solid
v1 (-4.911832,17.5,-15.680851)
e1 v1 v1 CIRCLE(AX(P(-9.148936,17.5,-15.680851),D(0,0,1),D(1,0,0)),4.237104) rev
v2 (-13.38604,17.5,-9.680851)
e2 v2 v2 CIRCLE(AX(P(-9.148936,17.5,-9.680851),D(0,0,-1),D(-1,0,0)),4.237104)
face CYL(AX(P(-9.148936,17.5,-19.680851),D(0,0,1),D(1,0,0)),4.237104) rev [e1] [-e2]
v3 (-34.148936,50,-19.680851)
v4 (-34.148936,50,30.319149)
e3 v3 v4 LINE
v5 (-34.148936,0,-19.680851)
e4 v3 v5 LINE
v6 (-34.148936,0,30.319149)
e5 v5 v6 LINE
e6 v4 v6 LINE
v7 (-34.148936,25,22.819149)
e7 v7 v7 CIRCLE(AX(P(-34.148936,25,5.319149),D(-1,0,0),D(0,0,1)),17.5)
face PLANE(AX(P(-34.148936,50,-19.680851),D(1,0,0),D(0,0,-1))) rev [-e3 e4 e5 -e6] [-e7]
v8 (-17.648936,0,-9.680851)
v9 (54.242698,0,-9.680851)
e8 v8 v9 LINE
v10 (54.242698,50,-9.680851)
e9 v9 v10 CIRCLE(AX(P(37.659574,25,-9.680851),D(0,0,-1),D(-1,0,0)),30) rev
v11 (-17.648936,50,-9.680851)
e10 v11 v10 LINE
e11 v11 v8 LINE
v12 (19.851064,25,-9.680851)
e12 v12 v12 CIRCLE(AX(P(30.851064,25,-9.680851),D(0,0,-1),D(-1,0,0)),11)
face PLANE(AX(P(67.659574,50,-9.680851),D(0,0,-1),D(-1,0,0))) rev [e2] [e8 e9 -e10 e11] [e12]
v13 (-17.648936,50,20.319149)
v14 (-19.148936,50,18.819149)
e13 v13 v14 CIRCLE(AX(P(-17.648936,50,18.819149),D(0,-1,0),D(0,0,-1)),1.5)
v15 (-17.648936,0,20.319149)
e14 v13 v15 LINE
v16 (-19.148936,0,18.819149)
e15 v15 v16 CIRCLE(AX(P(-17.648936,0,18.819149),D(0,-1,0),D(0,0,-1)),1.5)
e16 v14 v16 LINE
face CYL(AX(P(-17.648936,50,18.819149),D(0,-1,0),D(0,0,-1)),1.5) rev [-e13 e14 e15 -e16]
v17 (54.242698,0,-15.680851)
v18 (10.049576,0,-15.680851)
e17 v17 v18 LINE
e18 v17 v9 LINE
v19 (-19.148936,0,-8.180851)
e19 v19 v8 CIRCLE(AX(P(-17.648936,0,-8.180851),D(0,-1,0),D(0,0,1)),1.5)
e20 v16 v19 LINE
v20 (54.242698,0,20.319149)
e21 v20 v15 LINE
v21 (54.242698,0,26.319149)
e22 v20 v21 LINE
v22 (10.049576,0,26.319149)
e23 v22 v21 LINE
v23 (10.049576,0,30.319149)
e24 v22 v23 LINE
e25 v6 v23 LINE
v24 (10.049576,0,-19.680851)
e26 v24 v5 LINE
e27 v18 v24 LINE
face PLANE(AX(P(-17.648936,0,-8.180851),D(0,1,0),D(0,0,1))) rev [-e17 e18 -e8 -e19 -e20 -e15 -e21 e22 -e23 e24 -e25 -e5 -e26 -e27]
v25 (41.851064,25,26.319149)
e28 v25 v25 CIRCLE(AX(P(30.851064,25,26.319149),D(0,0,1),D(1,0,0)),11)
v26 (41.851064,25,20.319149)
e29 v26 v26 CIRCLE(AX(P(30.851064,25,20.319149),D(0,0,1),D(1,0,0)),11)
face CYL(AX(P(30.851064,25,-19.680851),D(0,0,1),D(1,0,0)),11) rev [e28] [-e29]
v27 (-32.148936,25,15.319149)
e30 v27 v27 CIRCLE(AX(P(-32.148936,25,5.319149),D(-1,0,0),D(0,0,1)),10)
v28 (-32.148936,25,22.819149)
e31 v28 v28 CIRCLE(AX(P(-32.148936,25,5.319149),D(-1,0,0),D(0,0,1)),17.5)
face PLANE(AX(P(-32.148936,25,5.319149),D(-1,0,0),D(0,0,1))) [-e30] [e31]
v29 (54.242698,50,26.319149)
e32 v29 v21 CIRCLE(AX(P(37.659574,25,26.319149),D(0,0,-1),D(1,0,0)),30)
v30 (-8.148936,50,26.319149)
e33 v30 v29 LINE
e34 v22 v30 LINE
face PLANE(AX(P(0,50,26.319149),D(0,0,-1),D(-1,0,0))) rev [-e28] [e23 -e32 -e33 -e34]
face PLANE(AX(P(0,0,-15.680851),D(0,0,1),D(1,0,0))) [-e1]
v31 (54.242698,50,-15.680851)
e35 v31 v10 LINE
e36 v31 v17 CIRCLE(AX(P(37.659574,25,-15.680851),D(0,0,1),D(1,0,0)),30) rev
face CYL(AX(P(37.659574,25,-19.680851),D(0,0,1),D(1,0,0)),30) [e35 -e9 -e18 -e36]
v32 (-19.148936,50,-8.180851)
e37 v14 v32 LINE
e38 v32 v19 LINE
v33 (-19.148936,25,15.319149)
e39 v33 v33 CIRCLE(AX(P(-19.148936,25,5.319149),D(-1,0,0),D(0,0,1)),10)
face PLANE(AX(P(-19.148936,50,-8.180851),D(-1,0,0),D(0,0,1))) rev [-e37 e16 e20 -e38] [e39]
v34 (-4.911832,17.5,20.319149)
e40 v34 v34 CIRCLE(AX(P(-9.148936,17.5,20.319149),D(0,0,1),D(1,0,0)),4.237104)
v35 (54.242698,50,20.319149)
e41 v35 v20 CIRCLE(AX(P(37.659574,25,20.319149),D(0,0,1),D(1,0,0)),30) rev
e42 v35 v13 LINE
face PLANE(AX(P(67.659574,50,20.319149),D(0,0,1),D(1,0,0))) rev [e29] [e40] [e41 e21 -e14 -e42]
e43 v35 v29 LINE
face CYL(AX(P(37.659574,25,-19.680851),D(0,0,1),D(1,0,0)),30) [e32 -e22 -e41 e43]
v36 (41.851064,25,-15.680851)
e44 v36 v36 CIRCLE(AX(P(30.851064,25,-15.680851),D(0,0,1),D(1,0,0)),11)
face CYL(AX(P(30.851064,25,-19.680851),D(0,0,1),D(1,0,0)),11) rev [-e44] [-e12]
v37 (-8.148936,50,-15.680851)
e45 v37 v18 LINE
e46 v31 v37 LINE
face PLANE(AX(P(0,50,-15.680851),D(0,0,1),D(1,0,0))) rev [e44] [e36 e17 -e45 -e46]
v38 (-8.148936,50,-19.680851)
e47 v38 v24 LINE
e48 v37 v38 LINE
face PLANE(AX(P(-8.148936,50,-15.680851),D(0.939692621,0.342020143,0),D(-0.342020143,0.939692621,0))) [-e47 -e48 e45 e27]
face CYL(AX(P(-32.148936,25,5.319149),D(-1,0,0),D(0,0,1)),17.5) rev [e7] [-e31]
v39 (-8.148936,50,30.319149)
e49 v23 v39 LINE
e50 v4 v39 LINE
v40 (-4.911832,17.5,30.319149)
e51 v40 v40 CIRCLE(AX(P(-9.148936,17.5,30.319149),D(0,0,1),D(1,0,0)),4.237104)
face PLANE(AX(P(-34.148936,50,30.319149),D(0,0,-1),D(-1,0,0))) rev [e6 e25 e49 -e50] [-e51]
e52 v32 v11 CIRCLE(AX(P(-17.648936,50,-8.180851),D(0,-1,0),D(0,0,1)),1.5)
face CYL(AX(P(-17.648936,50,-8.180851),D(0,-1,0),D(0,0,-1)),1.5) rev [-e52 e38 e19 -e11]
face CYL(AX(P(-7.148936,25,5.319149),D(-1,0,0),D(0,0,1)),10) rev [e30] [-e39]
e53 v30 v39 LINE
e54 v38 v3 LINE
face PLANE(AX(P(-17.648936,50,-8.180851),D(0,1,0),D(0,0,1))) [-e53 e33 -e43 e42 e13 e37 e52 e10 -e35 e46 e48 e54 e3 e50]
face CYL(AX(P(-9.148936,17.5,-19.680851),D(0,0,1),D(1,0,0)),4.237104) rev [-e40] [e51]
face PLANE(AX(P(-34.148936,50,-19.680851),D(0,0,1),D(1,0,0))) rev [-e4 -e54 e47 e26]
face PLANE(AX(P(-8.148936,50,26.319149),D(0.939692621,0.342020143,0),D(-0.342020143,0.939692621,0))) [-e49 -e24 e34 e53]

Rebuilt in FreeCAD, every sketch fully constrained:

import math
import FreeCAD as App
import Part
import Sketcher

V = App.Vector
Q = App.Units.Quantity

doc = App.newDocument("Part")
body = doc.addObject("PartDesign::Body", "Body")

# Sketch on XZ plane
sketch1 = doc.addObject("Sketcher::SketchObject", "Sketch")
body.addObject(sketch1)
sketch1.AttachmentSupport = (doc.XZ_Plane, [""])
sketch1.MapMode = "FlatFace"
sketch1.addGeometry([
    Part.LineSegment(V(-34.1, -19.7, 0), V(-34.1, 30.3, 0)),  # 0
    Part.LineSegment(V(-34.1, 30.3, 0), V(0, 30.3, 0)),  # 1
    Part.LineSegment(V(0, 30.3, 0), V(0, 26.3, 0)),  # 2
    Part.LineSegment(V(0, 26.3, 0), V(67.7, 26.3, 0)),  # 3
    Part.LineSegment(V(67.7, 26.3, 0), V(67.7, 20.3, 0)),  # 4
    Part.LineSegment(V(67.7, 20.3, 0), V(-17.6, 20.3, 0)),  # 5
    Part.ArcOfCircle(Part.Circle(V(-17.6, 18.8, 0), V(0, 0, 1), 1.5), math.radians(90), math.radians(180)),  # 6
    Part.LineSegment(V(-19.1, 18.8, 0), V(-19.1, -8.2, 0)),  # 7
    Part.ArcOfCircle(Part.Circle(V(-17.6, -8.2, 0), V(0, 0, 1), 1.5), math.radians(180), math.radians(270)),  # 8
    Part.LineSegment(V(-17.6, -9.7, 0), V(67.7, -9.7, 0)),  # 9
    Part.LineSegment(V(67.7, -9.7, 0), V(67.7, -15.7, 0)),  # 10
    Part.LineSegment(V(67.7, -15.7, 0), V(0, -15.7, 0)),  # 11
    Part.LineSegment(V(0, -15.7, 0), V(0, -19.7, 0)),  # 12
    Part.LineSegment(V(0, -19.7, 0), V(-34.1, -19.7, 0)),  # 13
], False)
sketch1.addConstraint([
    Sketcher.Constraint("Coincident", 0, 2, 1, 1),
    Sketcher.Constraint("Coincident", 1, 2, 2, 1),
    Sketcher.Constraint("Coincident", 2, 2, 3, 1),
    Sketcher.Constraint("Coincident", 3, 2, 4, 1),
    Sketcher.Constraint("Coincident", 4, 2, 5, 1),
    Sketcher.Constraint("Tangent", 5, 2, 6, 1),
    Sketcher.Constraint("Tangent", 6, 2, 7, 1),
    Sketcher.Constraint("Tangent", 7, 2, 8, 1),
    Sketcher.Constraint("Tangent", 8, 2, 9, 1),
    Sketcher.Constraint("Coincident", 9, 2, 10, 1),
    Sketcher.Constraint("Coincident", 10, 2, 11, 1),
    Sketcher.Constraint("Coincident", 11, 2, 12, 1),
    Sketcher.Constraint("Coincident", 12, 2, 13, 1),
    Sketcher.Constraint("Coincident", 13, 2, 0, 1),
    Sketcher.Constraint("Vertical", 0),
    Sketcher.Constraint("Horizontal", 1),
    Sketcher.Constraint("Vertical", 2),
    Sketcher.Constraint("Horizontal", 3),
    Sketcher.Constraint("Vertical", 4),
    Sketcher.Constraint("Horizontal", 5),
    Sketcher.Constraint("Vertical", 7),
    Sketcher.Constraint("Horizontal", 9),
    Sketcher.Constraint("Vertical", 10),
    Sketcher.Constraint("Horizontal", 11),
    Sketcher.Constraint("Vertical", 12),
    Sketcher.Constraint("Horizontal", 13),
    Sketcher.Constraint("Equal", 6, 8),
    Sketcher.Constraint("PointOnObject", 1, 2, -2),
    Sketcher.Constraint("PointOnObject", 11, 2, -2),
    Sketcher.Constraint("Vertical", 4, 2, 9, 2),
    Sketcher.Constraint("Equal", 4, 10),
    Sketcher.Constraint("Equal", 2, 12),
    Sketcher.Constraint("Radius", 6, 1.5),
    Sketcher.Constraint("DistanceY", 0, 1, 0, 2, 50.0),
    Sketcher.Constraint("DistanceY", 2, 2, 2, 1, 4.0),
    Sketcher.Constraint("DistanceY", 4, 2, 4, 1, 6.0),
    Sketcher.Constraint("DistanceX", 0, 2, 6, 2, 15.0),
    Sketcher.Constraint("DistanceX", 5, 2, 5, 1, 85.308511),
    Sketcher.Constraint("DistanceX", 1, 1, 1, 2, 34.148936),
    Sketcher.Constraint("DistanceY", -1, 1, 6, 3, 18.819149),
])
pad1 = doc.addObject("PartDesign::Pad", "Pad")
body.addObject(pad1)
pad1.Profile = sketch1
pad1.Length = 50
pad1.Reversed = True

# Sketch on YZ plane
sketch2 = doc.addObject("Sketcher::SketchObject", "Sketch001")
body.addObject(sketch2)
sketch2.AttachmentSupport = (doc.YZ_Plane, [""])
sketch2.MapMode = "FlatFace"
sketch2.AttachmentOffset = App.Placement(V(0, 0, -34.148936), App.Rotation())
sketch2.addGeometry(Part.Circle(V(25, 5, 0), V(0, 0, 1), 18), False)
sketch2.addConstraint([
    Sketcher.Constraint("Diameter", 0, 35.0),
    Sketcher.Constraint("DistanceX", -1, 1, 0, 3, 25.0),
    Sketcher.Constraint("DistanceY", -1, 1, 0, 3, 5.319149),
])
pocket1 = doc.addObject("PartDesign::Pocket", "Pocket")
body.addObject(pocket1)
pocket1.Profile = sketch2
pocket1.Length = 2
pocket1.Reversed = True

# Sketch on YZ plane
sketch3 = doc.addObject("Sketcher::SketchObject", "Sketch002")
body.addObject(sketch3)
sketch3.AttachmentSupport = (doc.YZ_Plane, [""])
sketch3.MapMode = "FlatFace"
sketch3.AttachmentOffset = App.Placement(V(0, 0, -32.148936), App.Rotation())
sketch3.addGeometry(Part.Circle(V(25, 5, 0), V(0, 0, 1), 10), False)
sketch3.addConstraint([
    Sketcher.Constraint("Diameter", 0, 20.0),
    Sketcher.Constraint("DistanceX", -1, 1, 0, 3, 25.0),
    Sketcher.Constraint("DistanceY", -1, 1, 0, 3, 5.319149),
])
pocket2 = doc.addObject("PartDesign::Pocket", "Pocket001")
body.addObject(pocket2)
pocket2.Profile = sketch3
pocket2.Length = 25
pocket2.Reversed = True

# Sketch on XY plane
sketch4 = doc.addObject("Sketcher::SketchObject", "Sketch003")
body.addObject(sketch4)
sketch4.AttachmentSupport = (doc.XY_Plane, [""])
sketch4.MapMode = "FlatFace"
sketch4.AttachmentOffset = App.Placement(V(0, 0, 26.319149), App.Rotation())
sketch4.addGeometry(Part.Circle(V(31, 25, 0), V(0, 0, 1), 11), False)
sketch4.addConstraint([
    Sketcher.Constraint("Diameter", 0, 22.0),
    Sketcher.Constraint("DistanceY", -1, 1, 0, 3, 25.0),
    Sketcher.Constraint("DistanceX", -1, 1, 0, 3, 30.851064),
])
pocket3 = doc.addObject("PartDesign::Pocket", "Pocket002")
body.addObject(pocket3)
pocket3.Profile = sketch4
pocket3.Type = "ThroughAll"

# Sketch on XY plane
sketch5 = doc.addObject("Sketcher::SketchObject", "Sketch004")
body.addObject(sketch5)
sketch5.AttachmentSupport = (doc.XY_Plane, [""])
sketch5.MapMode = "FlatFace"
sketch5.AttachmentOffset = App.Placement(V(0, 0, 26.319149), App.Rotation())
sketch5.addGeometry([
    Part.LineSegment(V(76, 0, 0), V(76, 50, 0)),
    Part.LineSegment(V(76, 50, 0), V(54, 50, 0)),
    Part.ArcOfCircle(Part.Circle(V(38, 25, 0), V(0, 0, 1), 30), math.radians(-56), math.radians(56)),
    Part.LineSegment(V(54, 0, 0), V(76, 0, 0)),
], False)
sketch5.addConstraint([
    Sketcher.Constraint("Coincident", 0, 2, 1, 1),
    Sketcher.Constraint("Coincident", 1, 2, 2, 2),
    Sketcher.Constraint("Coincident", 2, 1, 3, 1),
    Sketcher.Constraint("Coincident", 3, 2, 0, 1),
    Sketcher.Constraint("Vertical", 0),
    Sketcher.Constraint("Horizontal", 1),
    Sketcher.Constraint("Horizontal", 3),
    Sketcher.Constraint("PointOnObject", 2, 1, -1),
    Sketcher.Constraint("Vertical", 1, 2, 2, 1),
    Sketcher.Constraint("Radius", 2, 30.0),
    Sketcher.Constraint("DistanceY", 0, 1, 0, 2, 50.0),
    Sketcher.Constraint("DistanceX", -1, 1, 1, 2, 54.242698),
    Sketcher.Constraint("DistanceX", 1, 2, 1, 1, 21.350127),
])
pocket4 = doc.addObject("PartDesign::Pocket", "Pocket003")
body.addObject(pocket4)
pocket4.Profile = sketch5
pocket4.Type = "ThroughAll"

# Sketch on XY plane
sketch6 = doc.addObject("Sketcher::SketchObject", "Sketch005")
body.addObject(sketch6)
sketch6.AttachmentSupport = (doc.XY_Plane, [""])
sketch6.MapMode = "FlatFace"
sketch6.AttachmentOffset = App.Placement(V(0, 0, 30.319149), App.Rotation())
sketch6.addGeometry([
    Part.LineSegment(V(-8.1, 50, 0), V(-34.1, 50, 0)),  # 0
    Part.LineSegment(V(-34.1, 50, 0), V(-34.1, 0, 0)),  # 1
    Part.LineSegment(V(-34.1, 0, 0), V(10, 0, 0)),  # 2
    Part.LineSegment(V(10, 0, 0), V(-8.1, 50, 0)),  # 3
    Part.Circle(V(-9.1, 17.5, 0), V(0, 0, 1), 2.5),  # 4
], False)
sketch6.addConstraint([
    Sketcher.Constraint("Coincident", 0, 2, 1, 1),
    Sketcher.Constraint("Coincident", 1, 2, 2, 1),
    Sketcher.Constraint("Coincident", 2, 2, 3, 1),
    Sketcher.Constraint("Coincident", 3, 2, 0, 1),
    Sketcher.Constraint("Horizontal", 0),
    Sketcher.Constraint("Vertical", 1),
    Sketcher.Constraint("Horizontal", 2),
    Sketcher.Constraint("PointOnObject", 1, 2, -1),
    Sketcher.Constraint("Diameter", 4, 5.0),
    Sketcher.Constraint("DistanceX", 0, 2, 0, 1, 26.0),
    Sketcher.Constraint("DistanceY", 1, 2, 1, 1, 50.0),
    Sketcher.Constraint("Angle", 3, Q("110 deg")),
    Sketcher.Constraint("DistanceX", 0, 2, 4, 3, 25.0),
    Sketcher.Constraint("DistanceY", -1, 1, 4, 3, 17.5),
    Sketcher.Constraint("DistanceX", 4, 3, -1, 1, 9.148936),
])
pad2 = doc.addObject("PartDesign::Pad", "Pad001")
body.addObject(pad2)
pad2.Profile = sketch6
pad2.Length = 4
pad2.Reversed = True

# Sketch on XY plane
sketch7 = doc.addObject("Sketcher::SketchObject", "Sketch006")
body.addObject(sketch7)
sketch7.AttachmentSupport = (doc.XY_Plane, [""])
sketch7.MapMode = "FlatFace"
sketch7.AttachmentOffset = App.Placement(V(0, 0, 30.319149), App.Rotation())
sketch7.addGeometry([
    Part.LineSegment(V(-8, 50, 0), V(0, 28, 0)),
    Part.LineSegment(V(0, 28, 0), V(0, 50, 0)),
    Part.LineSegment(V(0, 50, 0), V(-8, 50, 0)),
], False)
sketch7.addConstraint([
    Sketcher.Constraint("Coincident", 0, 2, 1, 1),
    Sketcher.Constraint("Coincident", 1, 2, 2, 1),
    Sketcher.Constraint("Coincident", 2, 2, 0, 1),
    Sketcher.Constraint("Vertical", 1),
    Sketcher.Constraint("Horizontal", 2),
    Sketcher.Constraint("PointOnObject", 0, 2, -2),
    Sketcher.Constraint("Angle", 0, Q("-70 deg")),
    Sketcher.Constraint("DistanceY", -1, 1, 1, 2, 50.0),
    Sketcher.Constraint("DistanceY", 1, 1, 1, 2, 22.389018),
])
pocket5 = doc.addObject("PartDesign::Pocket", "Pocket004")
body.addObject(pocket5)
pocket5.Profile = sketch7
pocket5.Length = 4

# Sketch on XY plane
sketch8 = doc.addObject("Sketcher::SketchObject", "Sketch007")
body.addObject(sketch8)
sketch8.AttachmentSupport = (doc.XY_Plane, [""])
sketch8.MapMode = "FlatFace"
sketch8.AttachmentOffset = App.Placement(V(0, 0, 30.319149), App.Rotation())
sketch8.addGeometry(Part.Circle(V(-9.1, 17.5, 0), V(0, 0, 1), 4.2), False)
sketch8.addConstraint([
    Sketcher.Constraint("DistanceY", -1, 1, 0, 3, 17.5),
    Sketcher.Constraint("Diameter", 0, 8.474209),
    Sketcher.Constraint("DistanceX", 0, 3, -1, 1, 9.148936),
])
pocket6 = doc.addObject("PartDesign::Pocket", "Pocket005")
body.addObject(pocket6)
pocket6.Profile = sketch8
pocket6.Type = "ThroughAll"

# Sketch on XY plane
sketch9 = doc.addObject("Sketcher::SketchObject", "Sketch008")
body.addObject(sketch9)
sketch9.AttachmentSupport = (doc.XY_Plane, [""])
sketch9.MapMode = "FlatFace"
sketch9.AttachmentOffset = App.Placement(V(0, 0, -19.680851), App.Rotation())
sketch9.addGeometry([
    Part.LineSegment(V(-8, 50, 0), V(10, 0, 0)),
    Part.LineSegment(V(10, 0, 0), V(-19, 0, 0)),
    Part.LineSegment(V(-19, 0, 0), V(-19, 50, 0)),
    Part.LineSegment(V(-19, 50, 0), V(-8, 50, 0)),
], False)
sketch9.addConstraint([
    Sketcher.Constraint("Coincident", 0, 2, 1, 1),
    Sketcher.Constraint("Coincident", 1, 2, 2, 1),
    Sketcher.Constraint("Coincident", 2, 2, 3, 1),
    Sketcher.Constraint("Coincident", 3, 2, 0, 1),
    Sketcher.Constraint("Horizontal", 1),
    Sketcher.Constraint("Vertical", 2),
    Sketcher.Constraint("Horizontal", 3),
    Sketcher.Constraint("PointOnObject", 0, 2, -1),
    Sketcher.Constraint("DistanceX", 3, 1, 3, 2, 11.0),
    Sketcher.Constraint("DistanceY", 2, 1, 2, 2, 50.0),
    Sketcher.Constraint("Angle", 0, Q("-70 deg")),
    Sketcher.Constraint("DistanceX", -1, 1, 0, 2, 10.049576),
])
pad3 = doc.addObject("PartDesign::Pad", "Pad002")
body.addObject(pad3)
pad3.Profile = sketch9
pad3.Length = 4

# Sketch on XY plane
sketch10 = doc.addObject("Sketcher::SketchObject", "Sketch009")
body.addObject(sketch10)
sketch10.AttachmentSupport = (doc.XY_Plane, [""])
sketch10.MapMode = "FlatFace"
sketch10.AttachmentOffset = App.Placement(V(0, 0, -19.680851), App.Rotation())
sketch10.addGeometry([
    Part.LineSegment(V(0, 50, 0), V(0, 28, 0)),
    Part.LineSegment(V(0, 28, 0), V(-8, 50, 0)),
    Part.LineSegment(V(-8, 50, 0), V(0, 50, 0)),
], False)
sketch10.addConstraint([
    Sketcher.Constraint("Coincident", 0, 2, 1, 1),
    Sketcher.Constraint("Coincident", 1, 2, 2, 1),
    Sketcher.Constraint("Coincident", 2, 2, 0, 1),
    Sketcher.Constraint("Vertical", 0),
    Sketcher.Constraint("Horizontal", 2),
    Sketcher.Constraint("PointOnObject", 0, 2, -2),
    Sketcher.Constraint("Angle", 1, Q("110 deg")),
    Sketcher.Constraint("DistanceY", -1, 1, 1, 2, 50.0),
    Sketcher.Constraint("DistanceY", 0, 2, 0, 1, 22.389018),
])
pocket7 = doc.addObject("PartDesign::Pocket", "Pocket006")
body.addObject(pocket7)
pocket7.Profile = sketch10
pocket7.Length = 4
pocket7.Reversed = True

doc.recompute()
